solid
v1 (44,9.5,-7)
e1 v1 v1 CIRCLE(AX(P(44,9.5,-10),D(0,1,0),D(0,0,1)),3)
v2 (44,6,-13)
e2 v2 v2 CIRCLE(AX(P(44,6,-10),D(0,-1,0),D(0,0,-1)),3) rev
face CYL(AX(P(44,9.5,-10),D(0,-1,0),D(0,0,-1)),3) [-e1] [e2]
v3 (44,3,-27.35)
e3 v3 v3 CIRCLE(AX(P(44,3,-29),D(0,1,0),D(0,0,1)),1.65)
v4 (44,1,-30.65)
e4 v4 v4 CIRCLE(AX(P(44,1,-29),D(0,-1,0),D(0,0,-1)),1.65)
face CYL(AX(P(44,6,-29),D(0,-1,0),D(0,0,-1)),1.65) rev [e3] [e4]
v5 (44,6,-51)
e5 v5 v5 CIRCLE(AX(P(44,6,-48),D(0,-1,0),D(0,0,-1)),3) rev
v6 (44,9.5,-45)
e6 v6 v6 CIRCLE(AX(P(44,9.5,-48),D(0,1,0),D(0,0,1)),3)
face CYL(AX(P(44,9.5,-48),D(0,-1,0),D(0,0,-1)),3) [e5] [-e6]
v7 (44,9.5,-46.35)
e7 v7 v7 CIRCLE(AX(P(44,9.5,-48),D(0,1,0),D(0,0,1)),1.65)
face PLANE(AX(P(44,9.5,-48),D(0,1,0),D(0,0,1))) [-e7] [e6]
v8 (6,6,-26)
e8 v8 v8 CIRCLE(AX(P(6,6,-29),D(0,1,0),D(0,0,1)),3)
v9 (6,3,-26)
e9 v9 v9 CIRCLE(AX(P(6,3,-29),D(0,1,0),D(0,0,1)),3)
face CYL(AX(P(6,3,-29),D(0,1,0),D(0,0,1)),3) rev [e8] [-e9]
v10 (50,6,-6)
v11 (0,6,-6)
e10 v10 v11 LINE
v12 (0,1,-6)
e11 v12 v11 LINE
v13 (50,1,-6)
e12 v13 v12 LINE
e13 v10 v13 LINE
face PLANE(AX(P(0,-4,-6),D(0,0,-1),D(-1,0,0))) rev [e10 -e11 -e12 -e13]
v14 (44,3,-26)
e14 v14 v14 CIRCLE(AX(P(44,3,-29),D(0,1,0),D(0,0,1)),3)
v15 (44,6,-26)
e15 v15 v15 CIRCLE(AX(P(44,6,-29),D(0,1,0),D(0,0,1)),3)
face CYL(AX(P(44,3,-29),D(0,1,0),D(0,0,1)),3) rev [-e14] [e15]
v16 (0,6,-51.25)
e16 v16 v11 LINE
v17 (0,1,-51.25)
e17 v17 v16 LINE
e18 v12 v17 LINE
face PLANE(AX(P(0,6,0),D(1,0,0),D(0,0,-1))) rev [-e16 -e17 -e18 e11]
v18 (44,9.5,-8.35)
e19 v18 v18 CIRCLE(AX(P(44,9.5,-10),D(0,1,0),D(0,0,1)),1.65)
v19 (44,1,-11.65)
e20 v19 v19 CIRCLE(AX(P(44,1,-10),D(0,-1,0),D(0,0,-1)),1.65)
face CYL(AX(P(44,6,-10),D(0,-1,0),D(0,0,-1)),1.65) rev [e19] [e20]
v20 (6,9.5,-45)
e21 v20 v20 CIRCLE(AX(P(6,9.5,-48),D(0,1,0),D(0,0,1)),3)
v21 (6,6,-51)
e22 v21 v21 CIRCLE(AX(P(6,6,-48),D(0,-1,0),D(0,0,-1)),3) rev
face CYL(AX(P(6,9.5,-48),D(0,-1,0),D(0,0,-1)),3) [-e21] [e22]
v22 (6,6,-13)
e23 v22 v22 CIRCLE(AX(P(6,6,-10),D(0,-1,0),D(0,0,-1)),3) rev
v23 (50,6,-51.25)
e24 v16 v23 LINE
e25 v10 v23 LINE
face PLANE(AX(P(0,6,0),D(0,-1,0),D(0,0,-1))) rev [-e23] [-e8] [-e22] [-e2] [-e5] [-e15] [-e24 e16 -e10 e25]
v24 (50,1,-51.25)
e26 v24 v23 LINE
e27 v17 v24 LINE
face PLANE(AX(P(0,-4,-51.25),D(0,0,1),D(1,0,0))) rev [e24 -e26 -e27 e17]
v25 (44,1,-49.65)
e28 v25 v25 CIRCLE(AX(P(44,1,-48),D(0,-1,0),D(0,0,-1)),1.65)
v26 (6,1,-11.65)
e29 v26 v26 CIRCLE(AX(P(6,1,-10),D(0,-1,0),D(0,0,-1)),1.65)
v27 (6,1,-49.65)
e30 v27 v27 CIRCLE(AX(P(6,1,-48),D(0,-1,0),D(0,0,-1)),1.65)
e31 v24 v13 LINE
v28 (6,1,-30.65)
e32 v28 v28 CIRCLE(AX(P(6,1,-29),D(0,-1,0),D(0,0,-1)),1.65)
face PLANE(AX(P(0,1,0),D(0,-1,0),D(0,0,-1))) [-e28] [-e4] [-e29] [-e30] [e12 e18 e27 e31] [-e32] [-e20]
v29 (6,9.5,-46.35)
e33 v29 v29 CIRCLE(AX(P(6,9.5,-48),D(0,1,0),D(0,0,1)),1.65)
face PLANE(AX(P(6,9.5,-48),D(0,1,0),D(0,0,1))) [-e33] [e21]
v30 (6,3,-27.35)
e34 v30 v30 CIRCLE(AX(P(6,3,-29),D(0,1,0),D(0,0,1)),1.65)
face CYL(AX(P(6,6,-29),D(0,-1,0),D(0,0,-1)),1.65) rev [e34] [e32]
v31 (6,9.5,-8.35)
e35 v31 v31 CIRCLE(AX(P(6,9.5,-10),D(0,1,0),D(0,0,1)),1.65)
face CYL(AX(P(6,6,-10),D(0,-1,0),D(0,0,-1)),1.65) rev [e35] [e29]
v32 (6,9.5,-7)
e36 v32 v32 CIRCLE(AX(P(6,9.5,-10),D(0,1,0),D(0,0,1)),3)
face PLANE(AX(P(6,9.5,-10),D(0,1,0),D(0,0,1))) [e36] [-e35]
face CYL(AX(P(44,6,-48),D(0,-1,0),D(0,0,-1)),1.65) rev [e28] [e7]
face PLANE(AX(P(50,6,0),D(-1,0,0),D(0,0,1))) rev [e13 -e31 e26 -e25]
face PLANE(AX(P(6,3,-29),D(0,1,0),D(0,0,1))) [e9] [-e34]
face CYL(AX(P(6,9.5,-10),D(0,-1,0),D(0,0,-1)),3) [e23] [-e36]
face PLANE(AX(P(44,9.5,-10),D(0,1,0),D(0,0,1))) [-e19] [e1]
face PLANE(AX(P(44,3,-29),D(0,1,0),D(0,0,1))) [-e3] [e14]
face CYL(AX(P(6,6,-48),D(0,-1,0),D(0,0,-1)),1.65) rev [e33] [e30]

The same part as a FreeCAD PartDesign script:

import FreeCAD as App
import Part
import Sketcher
Q = App.Units.Quantity

doc = App.newDocument("Part")
body = doc.addObject("PartDesign::Body", "Body")

# Sketch on XZ plane
sketch1 = body.newObject("Sketcher::SketchObject", "Sketch")
sketch1.AttachmentSupport = (doc.getObject("XZ_Plane"), [""])
sketch1.MapMode = "FlatFace"
sketch1.addGeometry([
    Part.LineSegment(App.Vector(0, -55, 0), App.Vector(0, 0, 0)),  # 0
    Part.LineSegment(App.Vector(0, 0, 0), App.Vector(50, 0, 0)),  # 1
    Part.LineSegment(App.Vector(50, 0, 0), App.Vector(50, -55, 0)),  # 2
    Part.LineSegment(App.Vector(50, -55, 0), App.Vector(0, -55, 0)),  # 3
    Part.Circle(App.Vector(6, -10, 0), App.Vector(0, 0, 1), 1.6),  # 4
    Part.Circle(App.Vector(44, -10, 0), App.Vector(0, 0, 1), 1.6),  # 5
    Part.Circle(App.Vector(6, -29, 0), App.Vector(0, 0, 1), 1.6),  # 6
    Part.Circle(App.Vector(6, -48, 0), App.Vector(0, 0, 1), 1.6),  # 7
    Part.Circle(App.Vector(44, -29, 0), App.Vector(0, 0, 1), 1.6),  # 8
    Part.Circle(App.Vector(44, -48, 0), App.Vector(0, 0, 1), 1.6),  # 9
], False)
sketch1.addConstraint([
    Sketcher.Constraint("Coincident", 0, 2, 1, 1),
    Sketcher.Constraint("Coincident", 1, 2, 2, 1),
    Sketcher.Constraint("Coincident", 2, 2, 3, 1),
    Sketcher.Constraint("Coincident", 3, 2, 0, 1),
    Sketcher.Constraint("Vertical", 0),
    Sketcher.Constraint("Horizontal", 1),
    Sketcher.Constraint("Vertical", 2),
    Sketcher.Constraint("Horizontal", 3),
    Sketcher.Constraint("Coincident", 0, 2, -1, 1),
    Sketcher.Constraint("Equal", 4, 5),
    Sketcher.Constraint("Equal", 5, 6),
    Sketcher.Constraint("Equal", 6, 7),
    Sketcher.Constraint("Equal", 7, 8),
    Sketcher.Constraint("Equal", 8, 9),
    Sketcher.Constraint("Horizontal", 4, 3, 5, 3),
    Sketcher.Constraint("Horizontal", 6, 3, 8, 3),
    Sketcher.Constraint("Horizontal", 7, 3, 9, 3),
    Sketcher.Constraint("Vertical", 4, 3, 6, 3),
    Sketcher.Constraint("Vertical", 6, 3, 7, 3),
    Sketcher.Constraint("Vertical", 5, 3, 8, 3),
    Sketcher.Constraint("Vertical", 8, 3, 9, 3),
    Sketcher.Constraint("Diameter", 4, Q("3.3 mm")),
    Sketcher.Constraint("DistanceX", 1, 1, 1, 2, Q("50 mm")),
    Sketcher.Constraint("DistanceY", 0, 1, 0, 2, Q("55 mm")),
    Sketcher.Constraint("DistanceX", -1, 1, 4, 3, Q("6 mm")),
    Sketcher.Constraint("DistanceY", 4, 3, -1, 1, Q("10 mm")),
    Sketcher.Constraint("DistanceX", -1, 1, 5, 3, Q("44 mm")),
    Sketcher.Constraint("DistanceY", 6, 3, -1, 1, Q("29 mm")),
    Sketcher.Constraint("DistanceY", 7, 3, -1, 1, Q("48 mm")),
])
pad1 = body.newObject("PartDesign::Pad", "Pad")
pad1.Profile = sketch1
pad1.Length = 6
pad1.Reversed = True

# Sketch on XZ plane
sketch2 = body.newObject("Sketcher::SketchObject", "Sketch001")
sketch2.AttachmentSupport = (doc.getObject("XZ_Plane"), [""])
sketch2.MapMode = "FlatFace"
sketch2.AttachmentOffset = App.Placement(App.Vector(0, 0, -6), App.Rotation())
sketch2.addGeometry([
    Part.Circle(App.Vector(6, -10, 0), App.Vector(0, 0, 1), 3),  # 0
    Part.Circle(App.Vector(6, -10, 0), App.Vector(0, 0, 1), 1.6),  # 1
    Part.Circle(App.Vector(44, -10, 0), App.Vector(0, 0, 1), 3),  # 2
    Part.Circle(App.Vector(44, -10, 0), App.Vector(0, 0, 1), 1.6),  # 3
    Part.Circle(App.Vector(6, -48, 0), App.Vector(0, 0, 1), 3),  # 4
    Part.Circle(App.Vector(6, -48, 0), App.Vector(0, 0, 1), 1.6),  # 5
    Part.Circle(App.Vector(44, -48, 0), App.Vector(0, 0, 1), 3),  # 6
    Part.Circle(App.Vector(44, -48, 0), App.Vector(0, 0, 1), 1.6),  # 7
], False)
sketch2.addConstraint([
    Sketcher.Constraint("Coincident", 1, 3, 0, 3),
    Sketcher.Constraint("Coincident", 3, 3, 2, 3),
    Sketcher.Constraint("Coincident", 5, 3, 4, 3),
    Sketcher.Constraint("Coincident", 7, 3, 6, 3),
    Sketcher.Constraint("Equal", 0, 2),
    Sketcher.Constraint("Equal", 1, 3),
    Sketcher.Constraint("Equal", 2, 4),
    Sketcher.Constraint("Equal", 3, 5),
    Sketcher.Constraint("Equal", 4, 6),
    Sketcher.Constraint("Equal", 5, 7),
    Sketcher.Constraint("Horizontal", 1, 3, 2, 3),
    Sketcher.Constraint("Horizontal", 5, 3, 6, 3),
    Sketcher.Constraint("Vertical", 1, 3, 4, 3),
    Sketcher.Constraint("Vertical", 3, 3, 6, 3),
    Sketcher.Constraint("Diameter", 0, Q("6 mm")),
    Sketcher.Constraint("Diameter", 1, Q("3.3 mm")),
    Sketcher.Constraint("DistanceX", -1, 1, 0, 3, Q("6 mm")),
    Sketcher.Constraint("DistanceY", 0, 3, -1, 1, Q("10 mm")),
    Sketcher.Constraint("DistanceX", -1, 1, 2, 3, Q("44 mm")),
    Sketcher.Constraint("DistanceY", 4, 3, -1, 1, Q("48 mm")),
])
pad2 = body.newObject("PartDesign::Pad", "Pad001")
pad2.Profile = sketch2
pad2.Length = 3.5
pad2.Reversed = True

# Sketch on XZ plane
sketch3 = body.newObject("Sketcher::SketchObject", "Sketch002")
sketch3.AttachmentSupport = (doc.getObject("XZ_Plane"), [""])
sketch3.MapMode = "FlatFace"
sketch3.AttachmentOffset = App.Placement(App.Vector(0, 0, -6), App.Rotation())
sketch3.addGeometry([
    Part.Circle(App.Vector(6, -29, 0), App.Vector(0, 0, 1), 3),
    Part.Circle(App.Vector(44, -29, 0), App.Vector(0, 0, 1), 3),
], False)
sketch3.addConstraint([
    Sketcher.Constraint("Equal", 0, 1),
    Sketcher.Constraint("Horizontal", 0, 3, 1, 3),
    Sketcher.Constraint("Diameter", 0, Q("6 mm")),
    Sketcher.Constraint("DistanceX", -1, 1, 0, 3, Q("6 mm")),
    Sketcher.Constraint("DistanceY", 0, 3, -1, 1, Q("29 mm")),
    Sketcher.Constraint("DistanceX", -1, 1, 1, 3, Q("44 mm")),
])
pocket1 = body.newObject("PartDesign::Pocket", "Pocket")
pocket1.Profile = sketch3
pocket1.Length = 3
pocket1.Reversed = True

# Sketch on XZ plane
sketch4 = body.newObject("Sketcher::SketchObject", "Sketch003")
sketch4.AttachmentSupport = (doc.getObject("XZ_Plane"), [""])
sketch4.MapMode = "FlatFace"
sketch4.AttachmentOffset = App.Placement(App.Vector(0, 0, -6), App.Rotation())
sketch4.addGeometry([
    Part.LineSegment(App.Vector(0, -55, 0), App.Vector(0, -51.2, 0)),  # 0
    Part.LineSegment(App.Vector(0, -51.2, 0), App.Vector(50, -51.2, 0)),  # 1
    Part.LineSegment(App.Vector(50, -51.2, 0), App.Vector(50, -55, 0)),  # 2
    Part.LineSegment(App.Vector(50, -55, 0), App.Vector(0, -55, 0)),  # 3
    Part.LineSegment(App.Vector(0, -6, 0), App.Vector(0, 0, 0)),  # 4
    Part.LineSegment(App.Vector(0, 0, 0), App.Vector(50, 0, 0)),  # 5
    Part.LineSegment(App.Vector(50, 0, 0), App.Vector(50, -6, 0)),  # 6
    Part.LineSegment(App.Vector(50, -6, 0), App.Vector(0, -6, 0)),  # 7
], False)
sketch4.addConstraint([
    Sketcher.Constraint("Coincident", 0, 2, 1, 1),
    Sketcher.Constraint("Coincident", 1, 2, 2, 1),
    Sketcher.Constraint("Coincident", 2, 2, 3, 1),
    Sketcher.Constraint("Coincident", 3, 2, 0, 1),
    Sketcher.Constraint("Coincident", 4, 2, 5, 1),
    Sketcher.Constraint("Coincident", 5, 2, 6, 1),
    Sketcher.Constraint("Coincident", 6, 2, 7, 1),
    Sketcher.Constraint("Coincident", 7, 2, 4, 1),
    Sketcher.Constraint("Vertical", 0),
    Sketcher.Constraint("Horizontal", 1),
    Sketcher.Constraint("Vertical", 2),
    Sketcher.Constraint("Horizontal", 3),
    Sketcher.Constraint("Vertical", 4),
    Sketcher.Constraint("Horizontal", 5),
    Sketcher.Constraint("Vertical", 6),
    Sketcher.Constraint("Horizontal", 7),
    Sketcher.Constraint("Coincident", 4, 2, -1, 1),
    Sketcher.Constraint("PointOnObject", 0, 2, -2),
    Sketcher.Constraint("Vertical", 2, 2, 5, 2),
    Sketcher.Constraint("DistanceX", 1, 1, 1, 2, Q("50 mm")),
    Sketcher.Constraint("DistanceY", 4, 1, 4, 2, Q("6 mm")),
    Sketcher.Constraint("DistanceY", 2, 2, -1, 1, Q("55 mm")),
    Sketcher.Constraint("DistanceY", 0, 1, 0, 2, Q("3.75 mm")),
])
pocket2 = body.newObject("PartDesign::Pocket", "Pocket001")
pocket2.Profile = sketch4
pocket2.Length = 10
pocket2.Reversed = True

# Sketch on XZ plane
sketch5 = body.newObject("Sketcher::SketchObject", "Sketch004")
sketch5.AttachmentSupport = (doc.getObject("XZ_Plane"), [""])
sketch5.MapMode = "FlatFace"
sketch5.addGeometry([
    Part.LineSegment(App.Vector(0, -6, 0), App.Vector(0, -51, 0)),
    Part.LineSegment(App.Vector(0, -51, 0), App.Vector(50, -51, 0)),
    Part.LineSegment(App.Vector(50, -51, 0), App.Vector(50, -6, 0)),
    Part.LineSegment(App.Vector(50, -6, 0), App.Vector(0, -6, 0)),
], False)
sketch5.addConstraint([
    Sketcher.Constraint("Coincident", 0, 2, 1, 1),
    Sketcher.Constraint("Coincident", 1, 2, 2, 1),
    Sketcher.Constraint("Coincident", 2, 2, 3, 1),
    Sketcher.Constraint("Coincident", 3, 2, 0, 1),
    Sketcher.Constraint("Vertical", 0),
    Sketcher.Constraint("Horizontal", 1),
    Sketcher.Constraint("Vertical", 2),
    Sketcher.Constraint("Horizontal", 3),
    Sketcher.Constraint("PointOnObject", 0, 2, -2),
    Sketcher.Constraint("DistanceX", 1, 1, 1, 2, Q("50 mm")),
    Sketcher.Constraint("DistanceY", 2, 2, -1, 1, Q("6 mm")),
    Sketcher.Constraint("DistanceY", 0, 2, 0, 1, Q("45.25 mm")),
])
pocket3 = body.newObject("PartDesign::Pocket", "Pocket002")
pocket3.Profile = sketch5
pocket3.Length = 1

doc.recompute()
